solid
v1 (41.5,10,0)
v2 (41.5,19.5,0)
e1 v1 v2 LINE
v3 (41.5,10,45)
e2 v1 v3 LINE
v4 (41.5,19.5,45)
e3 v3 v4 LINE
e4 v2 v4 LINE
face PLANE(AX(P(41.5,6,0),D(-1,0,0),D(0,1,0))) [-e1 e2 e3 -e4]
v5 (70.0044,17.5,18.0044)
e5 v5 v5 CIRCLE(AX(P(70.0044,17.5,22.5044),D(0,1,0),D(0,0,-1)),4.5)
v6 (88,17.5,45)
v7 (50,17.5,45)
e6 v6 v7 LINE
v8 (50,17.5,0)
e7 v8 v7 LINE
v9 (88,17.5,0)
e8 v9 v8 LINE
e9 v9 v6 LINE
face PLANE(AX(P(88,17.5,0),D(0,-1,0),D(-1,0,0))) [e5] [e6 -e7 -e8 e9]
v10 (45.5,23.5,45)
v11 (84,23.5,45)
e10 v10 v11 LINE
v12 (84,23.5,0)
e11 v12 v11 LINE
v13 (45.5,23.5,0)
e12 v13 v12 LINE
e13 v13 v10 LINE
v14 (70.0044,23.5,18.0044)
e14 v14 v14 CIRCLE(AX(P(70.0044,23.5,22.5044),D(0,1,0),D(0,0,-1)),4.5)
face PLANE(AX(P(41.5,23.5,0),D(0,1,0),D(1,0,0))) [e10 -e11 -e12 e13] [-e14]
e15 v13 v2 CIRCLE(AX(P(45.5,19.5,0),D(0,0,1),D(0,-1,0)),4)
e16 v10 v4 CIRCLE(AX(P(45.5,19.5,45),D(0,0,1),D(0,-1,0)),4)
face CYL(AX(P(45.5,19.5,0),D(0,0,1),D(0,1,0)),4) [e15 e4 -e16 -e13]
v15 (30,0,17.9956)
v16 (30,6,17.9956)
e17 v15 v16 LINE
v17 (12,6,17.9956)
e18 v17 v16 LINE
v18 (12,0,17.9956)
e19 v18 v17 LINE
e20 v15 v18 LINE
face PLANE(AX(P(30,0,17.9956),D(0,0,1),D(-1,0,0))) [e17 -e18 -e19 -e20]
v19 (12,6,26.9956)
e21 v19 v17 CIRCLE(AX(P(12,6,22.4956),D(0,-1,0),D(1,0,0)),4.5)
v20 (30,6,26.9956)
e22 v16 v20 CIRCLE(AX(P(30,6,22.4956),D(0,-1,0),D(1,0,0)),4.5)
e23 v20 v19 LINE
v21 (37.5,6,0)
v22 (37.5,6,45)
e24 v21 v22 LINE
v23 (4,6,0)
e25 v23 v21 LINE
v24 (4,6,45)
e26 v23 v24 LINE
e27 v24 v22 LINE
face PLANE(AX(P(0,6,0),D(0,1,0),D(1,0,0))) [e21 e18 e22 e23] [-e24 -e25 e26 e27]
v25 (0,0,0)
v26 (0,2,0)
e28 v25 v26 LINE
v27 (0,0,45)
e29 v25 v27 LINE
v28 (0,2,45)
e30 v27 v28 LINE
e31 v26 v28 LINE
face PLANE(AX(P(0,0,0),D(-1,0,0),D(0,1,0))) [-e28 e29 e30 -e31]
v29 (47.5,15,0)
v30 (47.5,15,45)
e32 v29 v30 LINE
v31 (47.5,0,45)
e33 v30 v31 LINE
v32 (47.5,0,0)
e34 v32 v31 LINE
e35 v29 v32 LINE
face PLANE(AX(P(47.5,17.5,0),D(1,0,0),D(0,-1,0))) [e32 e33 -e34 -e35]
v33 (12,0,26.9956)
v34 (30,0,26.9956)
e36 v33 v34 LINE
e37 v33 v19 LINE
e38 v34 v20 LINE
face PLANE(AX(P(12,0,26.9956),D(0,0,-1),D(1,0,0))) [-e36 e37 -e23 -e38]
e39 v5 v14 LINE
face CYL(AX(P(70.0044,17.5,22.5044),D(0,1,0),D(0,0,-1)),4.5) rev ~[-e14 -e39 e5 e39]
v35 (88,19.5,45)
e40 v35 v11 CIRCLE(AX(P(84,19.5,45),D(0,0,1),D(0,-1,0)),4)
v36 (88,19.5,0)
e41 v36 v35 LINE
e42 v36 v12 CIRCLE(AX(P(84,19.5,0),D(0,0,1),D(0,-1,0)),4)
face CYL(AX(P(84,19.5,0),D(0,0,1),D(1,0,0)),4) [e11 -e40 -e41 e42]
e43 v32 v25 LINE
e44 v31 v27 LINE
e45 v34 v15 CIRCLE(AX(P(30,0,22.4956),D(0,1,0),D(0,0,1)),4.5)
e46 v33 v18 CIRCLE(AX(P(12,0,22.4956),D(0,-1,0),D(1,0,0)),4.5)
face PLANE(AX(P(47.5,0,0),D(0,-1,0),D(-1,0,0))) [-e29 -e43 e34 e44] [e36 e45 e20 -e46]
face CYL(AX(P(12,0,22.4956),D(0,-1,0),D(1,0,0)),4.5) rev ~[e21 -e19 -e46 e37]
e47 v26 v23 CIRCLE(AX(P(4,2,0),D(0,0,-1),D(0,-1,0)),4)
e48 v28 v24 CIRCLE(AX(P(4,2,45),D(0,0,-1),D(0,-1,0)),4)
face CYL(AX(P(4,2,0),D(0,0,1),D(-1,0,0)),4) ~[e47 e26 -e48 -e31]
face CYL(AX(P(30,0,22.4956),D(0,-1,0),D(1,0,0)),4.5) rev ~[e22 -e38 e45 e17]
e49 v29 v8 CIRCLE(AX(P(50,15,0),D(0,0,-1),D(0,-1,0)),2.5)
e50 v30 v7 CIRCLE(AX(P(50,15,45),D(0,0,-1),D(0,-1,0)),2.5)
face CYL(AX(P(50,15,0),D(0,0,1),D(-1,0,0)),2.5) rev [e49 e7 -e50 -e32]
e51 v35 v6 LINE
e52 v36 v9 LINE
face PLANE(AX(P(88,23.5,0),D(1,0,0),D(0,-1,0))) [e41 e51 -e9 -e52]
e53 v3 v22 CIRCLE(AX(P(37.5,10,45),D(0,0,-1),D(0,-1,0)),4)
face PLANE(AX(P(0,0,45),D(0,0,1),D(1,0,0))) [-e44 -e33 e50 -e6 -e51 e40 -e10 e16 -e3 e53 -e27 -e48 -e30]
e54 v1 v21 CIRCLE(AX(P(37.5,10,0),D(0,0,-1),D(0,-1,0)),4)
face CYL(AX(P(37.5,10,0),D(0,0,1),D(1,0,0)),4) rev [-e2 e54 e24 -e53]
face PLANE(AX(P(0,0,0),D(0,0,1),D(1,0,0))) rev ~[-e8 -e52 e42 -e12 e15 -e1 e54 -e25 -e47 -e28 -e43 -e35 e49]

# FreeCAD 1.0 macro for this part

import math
import FreeCAD as App
import Part
import Sketcher
from FreeCAD import Vector
Q = App.Units.Quantity


def edges_at(feature, points):
    """Names of the edges that pass closest to the given points."""
    edges = feature.Shape.Edges
    near = lambda p: min(range(len(edges)), key=lambda i: edges[i].distToShape(Part.Vertex(*p))[0])
    return sorted({f"Edge{near(p) + 1}" for p in points})

doc = App.newDocument("Part")
body = doc.addObject("PartDesign::Body", "Body")

# Sketch on XY plane
sketch1 = doc.addObject("Sketcher::SketchObject", "Sketch")
body.addObject(sketch1)
sketch1.AttachmentSupport = (doc.XY_Plane, [""])
sketch1.MapMode = "FlatFace"
sketch1.addGeometry([
    Part.LineSegment(Vector(0, 6, 0), Vector(0, 0, 0)),  # 0
    Part.LineSegment(Vector(0, 0, 0), Vector(48, 0, 0)),  # 1
    Part.LineSegment(Vector(48, 0, 0), Vector(48, 18, 0)),  # 2
    Part.LineSegment(Vector(48, 18, 0), Vector(88, 18, 0)),  # 3
    Part.LineSegment(Vector(88, 18, 0), Vector(88, 24, 0)),  # 4
    Part.LineSegment(Vector(88, 24, 0), Vector(42, 24, 0)),  # 5
    Part.LineSegment(Vector(42, 24, 0), Vector(42, 6, 0)),  # 6
    Part.LineSegment(Vector(42, 6, 0), Vector(0, 6, 0)),  # 7
], False)
sketch1.addConstraint([
    Sketcher.Constraint("Coincident", 0, 2, 1, 1),
    Sketcher.Constraint("Coincident", 1, 2, 2, 1),
    Sketcher.Constraint("Coincident", 2, 2, 3, 1),
    Sketcher.Constraint("Coincident", 3, 2, 4, 1),
    Sketcher.Constraint("Coincident", 4, 2, 5, 1),
    Sketcher.Constraint("Coincident", 5, 2, 6, 1),
    Sketcher.Constraint("Coincident", 6, 2, 7, 1),
    Sketcher.Constraint("Coincident", 7, 2, 0, 1),
    Sketcher.Constraint("Vertical", 0),
    Sketcher.Constraint("Horizontal", 1),
    Sketcher.Constraint("Vertical", 2),
    Sketcher.Constraint("Horizontal", 3),
    Sketcher.Constraint("Vertical", 4),
    Sketcher.Constraint("Horizontal", 5),
    Sketcher.Constraint("Vertical", 6),
    Sketcher.Constraint("Horizontal", 7),
    Sketcher.Constraint("Coincident", 0, 2, -1, 1),
    Sketcher.Constraint("Equal", 0, 4),
    Sketcher.Constraint("DistanceY", 0, 2, 0, 1, Q("6 mm")),
    Sketcher.Constraint("DistanceX", 7, 2, 7, 1, Q("41.5 mm")),
    Sketcher.Constraint("DistanceY", 2, 1, 2, 2, Q("17.5 mm")),
    Sketcher.Constraint("DistanceX", -1, 1, 3, 2, Q("88 mm")),
    Sketcher.Constraint("DistanceX", 5, 2, 2, 2, Q("6 mm")),
])
pad1 = doc.addObject("PartDesign::Pad", "Pad")
body.addObject(pad1)
pad1.Profile = sketch1
pad1.Length = 45

# Sketch on XZ plane
sketch2 = doc.addObject("Sketcher::SketchObject", "Sketch001")
body.addObject(sketch2)
sketch2.AttachmentSupport = (doc.XZ_Plane, [""])
sketch2.MapMode = "FlatFace"
sketch2.AttachmentOffset = App.Placement(Vector(0, 0, -17.5), App.Rotation())
sketch2.addGeometry(Part.Circle(Vector(70, 22.5, 0), Vector(0, 0, 1), 4.5), False)
sketch2.addConstraint([
    Sketcher.Constraint("Diameter", 0, Q("9 mm")),
    Sketcher.Constraint("DistanceX", -1, 1, 0, 3, Q("70.0044 mm")),
    Sketcher.Constraint("DistanceY", -1, 1, 0, 3, Q("22.5044 mm")),
])
doc.recompute()
hole = doc.addObject("PartDesign::Hole", "Hole")
body.addObject(hole)
hole.Profile = sketch2
hole.ThreadType = "None"
hole.Diameter = 9
hole.DepthType = "ThroughAll"

# Sketch on XZ plane
sketch3 = doc.addObject("Sketcher::SketchObject", "Sketch002")
body.addObject(sketch3)
sketch3.AttachmentSupport = (doc.XZ_Plane, [""])
sketch3.MapMode = "FlatFace"
sketch3.addGeometry([
    Part.ArcOfCircle(Part.Circle(Vector(30, 22.5, 0), Vector(0, 0, 1), 4.5), math.radians(-90), math.radians(90)),
    Part.LineSegment(Vector(30, 27, 0), Vector(12, 27, 0)),
    Part.ArcOfCircle(Part.Circle(Vector(12, 22.5, 0), Vector(0, 0, 1), 4.5), math.radians(90), math.radians(270)),
    Part.LineSegment(Vector(12, 18, 0), Vector(30, 18, 0)),
], False)
sketch3.addConstraint([
    Sketcher.Constraint("Tangent", 0, 2, 1, 1),
    Sketcher.Constraint("Tangent", 1, 2, 2, 1),
    Sketcher.Constraint("Tangent", 2, 2, 3, 1),
    Sketcher.Constraint("Tangent", 3, 2, 0, 1),
    Sketcher.Constraint("Horizontal", 1),
    Sketcher.Constraint("Horizontal", 3),
    Sketcher.Constraint("Radius", 0, Q("4.5 mm")),
    Sketcher.Constraint("DistanceX", 1, 2, 1, 1, Q("18 mm")),
    Sketcher.Constraint("DistanceX", -1, 1, 0, 3, Q("30 mm")),
    Sketcher.Constraint("DistanceY", -1, 1, 0, 3, Q("22.4956 mm")),
])
pocket1 = doc.addObject("PartDesign::Pocket", "Pocket")
body.addObject(pocket1)
pocket1.Profile = sketch3
pocket1.Length = 45
doc.recompute()

fillet = doc.addObject("PartDesign::Fillet", "Fillet")
body.addObject(fillet)
fillet.Base = (pocket1, edges_at(pocket1, [(47.5, 17.5, 22.5)]))
fillet.Radius = 2.5
doc.recompute()

fillet2 = doc.addObject("PartDesign::Fillet", "Fillet001")
body.addObject(fillet2)
fillet2.Base = (fillet, edges_at(fillet, [
    (88, 23.5, 22.5),
    (41.5, 23.5, 22.5),
    (0, 6, 22.5),
    (41.5, 6, 22.5),
]))
fillet2.Radius = 4

doc.recompute()
